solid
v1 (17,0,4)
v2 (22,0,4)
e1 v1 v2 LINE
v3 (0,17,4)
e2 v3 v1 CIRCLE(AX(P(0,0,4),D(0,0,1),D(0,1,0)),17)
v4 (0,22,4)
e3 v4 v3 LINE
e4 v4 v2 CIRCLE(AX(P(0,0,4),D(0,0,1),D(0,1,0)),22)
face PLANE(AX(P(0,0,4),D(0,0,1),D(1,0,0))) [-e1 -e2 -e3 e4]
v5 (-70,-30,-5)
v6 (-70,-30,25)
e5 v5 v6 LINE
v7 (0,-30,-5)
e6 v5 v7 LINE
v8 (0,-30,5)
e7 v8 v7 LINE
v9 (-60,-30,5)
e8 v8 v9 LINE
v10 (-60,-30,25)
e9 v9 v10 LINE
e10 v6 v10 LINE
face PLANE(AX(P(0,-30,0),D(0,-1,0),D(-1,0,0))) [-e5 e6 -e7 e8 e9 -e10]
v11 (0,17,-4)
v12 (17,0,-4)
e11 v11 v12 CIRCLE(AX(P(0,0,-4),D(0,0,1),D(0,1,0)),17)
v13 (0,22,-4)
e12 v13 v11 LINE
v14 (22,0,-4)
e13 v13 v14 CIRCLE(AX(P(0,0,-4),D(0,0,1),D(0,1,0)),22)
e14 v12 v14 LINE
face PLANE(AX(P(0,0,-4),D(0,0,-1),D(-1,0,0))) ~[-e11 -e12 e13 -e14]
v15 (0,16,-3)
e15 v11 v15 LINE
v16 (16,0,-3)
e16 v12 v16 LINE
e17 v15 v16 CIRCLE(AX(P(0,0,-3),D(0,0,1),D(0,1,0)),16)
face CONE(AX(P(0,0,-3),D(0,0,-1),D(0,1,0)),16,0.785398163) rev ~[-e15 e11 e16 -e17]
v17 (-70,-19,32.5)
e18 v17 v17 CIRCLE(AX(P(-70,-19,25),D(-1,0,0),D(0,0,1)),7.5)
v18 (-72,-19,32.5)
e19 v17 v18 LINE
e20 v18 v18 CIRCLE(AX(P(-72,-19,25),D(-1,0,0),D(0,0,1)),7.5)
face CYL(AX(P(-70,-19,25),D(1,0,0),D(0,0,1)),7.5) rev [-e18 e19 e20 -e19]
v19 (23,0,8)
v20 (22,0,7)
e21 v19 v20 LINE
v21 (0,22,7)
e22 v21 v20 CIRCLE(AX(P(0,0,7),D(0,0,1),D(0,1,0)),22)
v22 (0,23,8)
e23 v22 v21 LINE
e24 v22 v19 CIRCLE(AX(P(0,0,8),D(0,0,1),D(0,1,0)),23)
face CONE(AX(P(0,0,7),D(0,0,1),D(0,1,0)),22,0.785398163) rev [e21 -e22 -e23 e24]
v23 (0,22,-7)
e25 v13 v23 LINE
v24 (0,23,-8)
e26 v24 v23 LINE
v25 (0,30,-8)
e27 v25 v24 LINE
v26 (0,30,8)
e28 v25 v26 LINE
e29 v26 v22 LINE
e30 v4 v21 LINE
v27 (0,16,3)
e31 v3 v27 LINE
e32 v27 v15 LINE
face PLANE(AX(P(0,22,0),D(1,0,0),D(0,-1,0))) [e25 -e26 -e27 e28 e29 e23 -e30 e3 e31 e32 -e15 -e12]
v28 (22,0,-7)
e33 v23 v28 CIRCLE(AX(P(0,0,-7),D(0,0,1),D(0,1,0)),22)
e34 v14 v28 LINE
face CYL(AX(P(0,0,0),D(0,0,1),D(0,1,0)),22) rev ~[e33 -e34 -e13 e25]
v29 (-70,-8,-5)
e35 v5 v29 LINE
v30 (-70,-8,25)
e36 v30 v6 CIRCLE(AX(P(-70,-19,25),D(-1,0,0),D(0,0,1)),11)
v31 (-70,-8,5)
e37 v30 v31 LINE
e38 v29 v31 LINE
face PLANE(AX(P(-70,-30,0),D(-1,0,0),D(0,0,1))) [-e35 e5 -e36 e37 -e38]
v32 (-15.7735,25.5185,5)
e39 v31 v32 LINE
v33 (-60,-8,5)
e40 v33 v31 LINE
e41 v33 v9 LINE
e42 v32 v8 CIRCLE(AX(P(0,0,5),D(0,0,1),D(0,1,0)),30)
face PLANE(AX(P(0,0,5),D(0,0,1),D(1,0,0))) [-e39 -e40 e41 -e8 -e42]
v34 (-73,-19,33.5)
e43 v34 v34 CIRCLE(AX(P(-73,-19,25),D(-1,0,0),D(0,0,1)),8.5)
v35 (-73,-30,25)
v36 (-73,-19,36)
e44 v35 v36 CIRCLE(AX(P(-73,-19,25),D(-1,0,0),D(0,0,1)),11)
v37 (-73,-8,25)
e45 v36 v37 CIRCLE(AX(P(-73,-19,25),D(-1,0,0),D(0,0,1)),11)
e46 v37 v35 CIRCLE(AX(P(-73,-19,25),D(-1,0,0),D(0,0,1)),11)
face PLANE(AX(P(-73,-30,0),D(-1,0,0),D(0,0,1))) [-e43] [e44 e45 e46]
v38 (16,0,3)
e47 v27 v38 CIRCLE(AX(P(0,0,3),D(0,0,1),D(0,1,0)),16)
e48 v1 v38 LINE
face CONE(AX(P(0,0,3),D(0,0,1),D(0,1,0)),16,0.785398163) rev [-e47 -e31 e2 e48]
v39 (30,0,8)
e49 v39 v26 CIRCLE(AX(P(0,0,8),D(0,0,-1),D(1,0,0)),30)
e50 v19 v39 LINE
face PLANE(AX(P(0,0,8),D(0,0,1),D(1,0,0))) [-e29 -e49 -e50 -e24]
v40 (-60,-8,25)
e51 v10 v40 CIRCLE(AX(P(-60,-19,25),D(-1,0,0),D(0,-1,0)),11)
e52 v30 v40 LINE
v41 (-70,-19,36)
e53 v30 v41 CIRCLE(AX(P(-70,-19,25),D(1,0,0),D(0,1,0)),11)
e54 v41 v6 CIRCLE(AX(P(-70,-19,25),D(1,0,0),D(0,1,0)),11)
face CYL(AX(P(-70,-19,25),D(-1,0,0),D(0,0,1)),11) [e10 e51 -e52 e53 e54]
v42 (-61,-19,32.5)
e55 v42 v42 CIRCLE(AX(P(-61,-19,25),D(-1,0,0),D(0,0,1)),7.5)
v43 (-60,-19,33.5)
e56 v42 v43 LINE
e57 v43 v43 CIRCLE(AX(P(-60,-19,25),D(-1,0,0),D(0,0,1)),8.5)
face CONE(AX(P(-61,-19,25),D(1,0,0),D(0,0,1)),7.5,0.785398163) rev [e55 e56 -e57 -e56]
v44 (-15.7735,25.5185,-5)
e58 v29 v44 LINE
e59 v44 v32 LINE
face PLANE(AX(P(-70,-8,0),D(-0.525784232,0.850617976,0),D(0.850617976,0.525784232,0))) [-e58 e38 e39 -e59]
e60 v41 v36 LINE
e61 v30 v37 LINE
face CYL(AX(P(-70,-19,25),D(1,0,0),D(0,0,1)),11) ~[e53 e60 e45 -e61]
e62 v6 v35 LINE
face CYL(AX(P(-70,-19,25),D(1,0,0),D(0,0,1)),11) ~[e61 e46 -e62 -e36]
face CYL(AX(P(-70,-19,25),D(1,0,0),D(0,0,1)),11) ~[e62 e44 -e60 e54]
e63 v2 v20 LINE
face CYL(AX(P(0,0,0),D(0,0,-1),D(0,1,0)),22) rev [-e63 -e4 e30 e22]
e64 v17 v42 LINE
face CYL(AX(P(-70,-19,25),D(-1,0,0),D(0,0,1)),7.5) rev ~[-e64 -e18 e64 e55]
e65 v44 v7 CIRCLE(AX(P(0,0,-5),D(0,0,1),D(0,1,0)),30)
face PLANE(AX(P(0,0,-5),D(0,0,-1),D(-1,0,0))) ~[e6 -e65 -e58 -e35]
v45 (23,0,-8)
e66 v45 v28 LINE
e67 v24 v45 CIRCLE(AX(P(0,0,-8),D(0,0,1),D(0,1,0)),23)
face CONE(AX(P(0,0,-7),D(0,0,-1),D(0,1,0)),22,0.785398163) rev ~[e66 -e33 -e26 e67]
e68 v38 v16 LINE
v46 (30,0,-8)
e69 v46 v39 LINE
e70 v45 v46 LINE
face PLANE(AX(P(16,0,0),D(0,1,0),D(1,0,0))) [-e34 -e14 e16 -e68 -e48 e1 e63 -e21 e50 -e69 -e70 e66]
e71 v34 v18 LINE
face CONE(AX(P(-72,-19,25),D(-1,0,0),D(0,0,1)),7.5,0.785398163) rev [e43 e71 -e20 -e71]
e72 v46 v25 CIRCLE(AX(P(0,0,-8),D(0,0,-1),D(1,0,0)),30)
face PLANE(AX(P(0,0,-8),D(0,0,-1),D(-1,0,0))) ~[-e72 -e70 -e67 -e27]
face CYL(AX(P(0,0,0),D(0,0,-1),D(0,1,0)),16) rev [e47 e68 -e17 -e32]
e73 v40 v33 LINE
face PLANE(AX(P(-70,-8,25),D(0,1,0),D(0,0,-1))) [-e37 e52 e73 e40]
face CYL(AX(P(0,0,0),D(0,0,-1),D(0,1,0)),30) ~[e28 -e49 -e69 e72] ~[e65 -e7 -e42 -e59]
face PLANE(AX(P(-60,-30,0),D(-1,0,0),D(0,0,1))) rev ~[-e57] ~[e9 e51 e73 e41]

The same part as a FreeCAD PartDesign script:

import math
import FreeCAD as App
import Part
import Sketcher


def edges_at(feature, points):
    """Names of the edges that pass closest to the given points."""
    edges = feature.Shape.Edges
    near = lambda p: min(range(len(edges)), key=lambda i: edges[i].distToShape(Part.Vertex(*p))[0])
    return sorted({f"Edge{near(p) + 1}" for p in points})

doc = App.newDocument("Part")
body = doc.addObject("PartDesign::Body", "Body")

# Sketch on XY plane
sketch1 = body.newObject("Sketcher::SketchObject", "Sketch")
sketch1.AttachmentSupport = (doc.getObject("XY_Plane"), [""])
sketch1.MapMode = "FlatFace"
sketch1.addGeometry([
    Part.ArcOfCircle(Part.Circle(App.Vector(0, 0, 0), App.Vector(0, 0, 1), 16), math.radians(90), math.radians(360)),
    Part.LineSegment(App.Vector(0, 16, 0), App.Vector(0, 22, 0)),
    Part.ArcOfCircle(Part.Circle(App.Vector(0, 0, 0), App.Vector(0, 0, 1), 22), math.radians(90), math.radians(360)),
    Part.LineSegment(App.Vector(22, 0, 0), App.Vector(16, 0, 0)),
], False)
sketch1.addConstraint([
    Sketcher.Constraint("Coincident", 0, 1, 1, 1),
    Sketcher.Constraint("Coincident", 1, 2, 2, 1),
    Sketcher.Constraint("Coincident", 2, 2, 3, 1),
    Sketcher.Constraint("Coincident", 3, 2, 0, 2),
    Sketcher.Constraint("Vertical", 1),
    Sketcher.Constraint("Horizontal", 3),
    Sketcher.Constraint("Coincident", 0, 3, -1, 1),
    Sketcher.Constraint("Coincident", 2, 3, -1, 1),
    Sketcher.Constraint("PointOnObject", 0, 1, -2),
    Sketcher.Constraint("PointOnObject", 2, 2, -1),
    Sketcher.Constraint("Radius", 0, 16.0),
    Sketcher.Constraint("Radius", 2, 22.0),
])
pad1 = body.newObject("PartDesign::Pad", "Pad")
pad1.Profile = sketch1
pad1.Length = 4

# Sketch on XY plane
sketch2 = body.newObject("Sketcher::SketchObject", "Sketch001")
sketch2.AttachmentSupport = (doc.getObject("XY_Plane"), [""])
sketch2.MapMode = "FlatFace"
sketch2.addGeometry([
    Part.ArcOfCircle(Part.Circle(App.Vector(0, 0, 0), App.Vector(0, 0, 1), 22), math.radians(90), math.radians(360)),
    Part.LineSegment(App.Vector(0, 22, 0), App.Vector(0, 30, 0)),
    Part.ArcOfCircle(Part.Circle(App.Vector(0, 0, 0), App.Vector(0, 0, 1), 30), math.radians(90), math.radians(360)),
    Part.LineSegment(App.Vector(30, 0, 0), App.Vector(22, 0, 0)),
], False)
sketch2.addConstraint([
    Sketcher.Constraint("Coincident", 0, 1, 1, 1),
    Sketcher.Constraint("Coincident", 1, 2, 2, 1),
    Sketcher.Constraint("Coincident", 2, 2, 3, 1),
    Sketcher.Constraint("Coincident", 3, 2, 0, 2),
    Sketcher.Constraint("Vertical", 1),
    Sketcher.Constraint("Horizontal", 3),
    Sketcher.Constraint("Coincident", 0, 3, -1, 1),
    Sketcher.Constraint("Coincident", 2, 3, -1, 1),
    Sketcher.Constraint("PointOnObject", 0, 1, -2),
    Sketcher.Constraint("PointOnObject", 2, 2, -1),
    Sketcher.Constraint("Radius", 0, 22.0),
    Sketcher.Constraint("Radius", 2, 30.0),
])
pad2 = body.newObject("PartDesign::Pad", "Pad001")
pad2.Profile = sketch2
pad2.Length = 8

# Sketch on XY plane
sketch3 = body.newObject("Sketcher::SketchObject", "Sketch002")
sketch3.AttachmentSupport = (doc.getObject("XY_Plane"), [""])
sketch3.MapMode = "FlatFace"
sketch3.addGeometry([
    Part.ArcOfCircle(Part.Circle(App.Vector(0, 0, 0), App.Vector(0, 0, 1), 30), math.radians(122), math.radians(270)),
    Part.LineSegment(App.Vector(-16, 26, 0), App.Vector(-70, -8, 0)),
    Part.LineSegment(App.Vector(-70, -8, 0), App.Vector(-70, -30, 0)),
    Part.LineSegment(App.Vector(-70, -30, 0), App.Vector(0, -30, 0)),
], False)
sketch3.addConstraint([
    Sketcher.Constraint("Tangent", 0, 1, 1, 1),
    Sketcher.Constraint("Coincident", 1, 2, 2, 1),
    Sketcher.Constraint("Coincident", 2, 2, 3, 1),
    Sketcher.Constraint("Tangent", 3, 2, 0, 2),
    Sketcher.Constraint("Vertical", 2),
    Sketcher.Constraint("Horizontal", 3),
    Sketcher.Constraint("Coincident", 0, 3, -1, 1),
    Sketcher.Constraint("Radius", 0, 30.0),
    Sketcher.Constraint("DistanceX", 3, 1, 3, 2, 70.0),
    Sketcher.Constraint("DistanceY", 2, 2, 2, 1, 22.0),
])
pad3 = body.newObject("PartDesign::Pad", "Pad002")
pad3.Profile = sketch3
pad3.Length = 5
doc.recompute()

chamfer = body.newObject("PartDesign::Chamfer", "Chamfer")
chamfer.Base = (pad3, edges_at(pad3, [(-15.556, -15.556, 8)]))
chamfer.Size = 1
doc.recompute()

chamfer2 = body.newObject("PartDesign::Chamfer", "Chamfer001")
chamfer2.Base = (chamfer, edges_at(chamfer, [(-11.314, -11.314, 4)]))
chamfer2.Size = 1
doc.recompute()

mirrored = body.newObject("PartDesign::Mirrored", "Mirrored")
mirrored.TransformMode = "Transform body"
mirrored.MirrorPlane = (doc.getObject("XY_Plane"), [""])
body.Tip = mirrored

# Sketch on YZ plane
sketch4 = body.newObject("Sketcher::SketchObject", "Sketch003")
sketch4.AttachmentSupport = (doc.getObject("YZ_Plane"), [""])
sketch4.MapMode = "FlatFace"
sketch4.AttachmentOffset = App.Placement(App.Vector(0, 0, -70), App.Rotation())
sketch4.addGeometry([
    Part.LineSegment(App.Vector(-8, -5, 0), App.Vector(-30, -5, 0)),
    Part.LineSegment(App.Vector(-30, -5, 0), App.Vector(-30, 25, 0)),
    Part.ArcOfCircle(Part.Circle(App.Vector(-19, 25, 0), App.Vector(0, 0, 1), 11), math.radians(180), math.radians(360)),
    Part.LineSegment(App.Vector(-8, 25, 0), App.Vector(-8, -5, 0)),
], False)
sketch4.addConstraint([
    Sketcher.Constraint("Coincident", 0, 2, 1, 1),
    Sketcher.Constraint("Tangent", 1, 2, 2, 1),
    Sketcher.Constraint("Tangent", 2, 2, 3, 1),
    Sketcher.Constraint("Coincident", 3, 2, 0, 1),
    Sketcher.Constraint("Horizontal", 0),
    Sketcher.Constraint("Vertical", 1),
    Sketcher.Constraint("Vertical", 3),
    Sketcher.Constraint("Radius", 2, 11.0),
    Sketcher.Constraint("DistanceY", 1, 1, 1, 2, 30.0),
    Sketcher.Constraint("DistanceX", 0, 2, -1, 1, 30.0),
    Sketcher.Constraint("DistanceY", -1, 1, 2, 3, 25.0),
])
pad4 = body.newObject("PartDesign::Pad", "Pad003")
pad4.Profile = sketch4
pad4.Length = 10

# Sketch on YZ plane
sketch5 = body.newObject("Sketcher::SketchObject", "Sketch004")
sketch5.AttachmentSupport = (doc.getObject("YZ_Plane"), [""])
sketch5.MapMode = "FlatFace"
sketch5.AttachmentOffset = App.Placement(App.Vector(0, 0, -70), App.Rotation())
sketch5.addGeometry([
    Part.Circle(App.Vector(-19, 25, 0), App.Vector(0, 0, 1), 11),
    Part.Circle(App.Vector(-19, 25, 0), App.Vector(0, 0, 1), 8),
], False)
sketch5.addConstraint([
    Sketcher.Constraint("Coincident", 1, 3, 0, 3),
    Sketcher.Constraint("Diameter", 0, 22.0),
    Sketcher.Constraint("Diameter", 1, 15.0),
    Sketcher.Constraint("DistanceX", 0, 3, -1, 1, 19.0),
    Sketcher.Constraint("DistanceY", -1, 1, 0, 3, 25.0),
])
pad5 = body.newObject("PartDesign::Pad", "Pad004")
pad5.Profile = sketch5
pad5.Length = 10

# Sketch on YZ plane
sketch6 = body.newObject("Sketcher::SketchObject", "Sketch005")
sketch6.AttachmentSupport = (doc.getObject("YZ_Plane"), [""])
sketch6.MapMode = "FlatFace"
sketch6.AttachmentOffset = App.Placement(App.Vector(0, 0, -70), App.Rotation())
sketch6.addGeometry([
    Part.Circle(App.Vector(-19, 25, 0), App.Vector(0, 0, 1), 11),
    Part.Circle(App.Vector(-19, 25, 0), App.Vector(0, 0, 1), 8),
], False)
sketch6.addConstraint([
    Sketcher.Constraint("Coincident", 1, 3, 0, 3),
    Sketcher.Constraint("Diameter", 0, 22.0),
    Sketcher.Constraint("Diameter", 1, 15.0),
    Sketcher.Constraint("DistanceX", 0, 3, -1, 1, 19.0),
    Sketcher.Constraint("DistanceY", -1, 1, 0, 3, 25.0),
])
pad6 = body.newObject("PartDesign::Pad", "Pad005")
pad6.Profile = sketch6
pad6.Length = 3
pad6.Reversed = True
doc.recompute()

chamfer3 = body.newObject("PartDesign::Chamfer", "Chamfer002")
chamfer3.Base = (pad6, edges_at(pad6, [(-73, -19, 17.5)]))
chamfer3.Size = 1
doc.recompute()

chamfer4 = body.newObject("PartDesign::Chamfer", "Chamfer003")
chamfer4.Base = (chamfer3, edges_at(chamfer3, [(-60, -19, 17.5)]))
chamfer4.Size = 1

doc.recompute()
